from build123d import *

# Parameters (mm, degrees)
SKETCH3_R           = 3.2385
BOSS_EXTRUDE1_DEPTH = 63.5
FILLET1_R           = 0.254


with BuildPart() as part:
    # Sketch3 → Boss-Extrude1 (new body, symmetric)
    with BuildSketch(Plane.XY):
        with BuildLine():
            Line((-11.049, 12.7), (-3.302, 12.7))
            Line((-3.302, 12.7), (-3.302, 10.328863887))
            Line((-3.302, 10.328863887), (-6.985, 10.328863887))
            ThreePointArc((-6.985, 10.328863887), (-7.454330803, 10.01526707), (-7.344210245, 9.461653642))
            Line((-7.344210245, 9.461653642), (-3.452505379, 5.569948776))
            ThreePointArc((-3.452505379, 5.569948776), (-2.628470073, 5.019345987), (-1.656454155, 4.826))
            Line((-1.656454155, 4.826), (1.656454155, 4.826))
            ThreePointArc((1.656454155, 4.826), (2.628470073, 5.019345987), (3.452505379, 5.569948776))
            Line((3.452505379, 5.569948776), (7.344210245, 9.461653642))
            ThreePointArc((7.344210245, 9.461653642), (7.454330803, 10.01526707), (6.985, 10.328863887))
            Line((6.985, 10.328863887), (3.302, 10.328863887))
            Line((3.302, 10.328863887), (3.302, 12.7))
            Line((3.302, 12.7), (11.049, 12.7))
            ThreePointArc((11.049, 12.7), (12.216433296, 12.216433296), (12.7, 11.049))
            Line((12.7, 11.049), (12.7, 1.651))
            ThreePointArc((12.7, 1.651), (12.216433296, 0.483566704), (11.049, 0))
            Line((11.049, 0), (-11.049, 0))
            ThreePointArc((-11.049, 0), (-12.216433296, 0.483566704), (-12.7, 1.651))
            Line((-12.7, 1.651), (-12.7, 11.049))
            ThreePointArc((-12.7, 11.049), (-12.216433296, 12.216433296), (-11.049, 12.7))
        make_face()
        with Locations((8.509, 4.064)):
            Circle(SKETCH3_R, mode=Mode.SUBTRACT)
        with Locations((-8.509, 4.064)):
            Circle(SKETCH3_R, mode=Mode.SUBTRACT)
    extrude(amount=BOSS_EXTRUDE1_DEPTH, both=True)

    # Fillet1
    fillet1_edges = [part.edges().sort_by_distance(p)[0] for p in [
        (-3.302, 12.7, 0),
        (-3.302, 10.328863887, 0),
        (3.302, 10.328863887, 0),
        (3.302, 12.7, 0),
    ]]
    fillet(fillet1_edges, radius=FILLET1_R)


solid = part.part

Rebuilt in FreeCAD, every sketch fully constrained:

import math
import FreeCAD as App
import Part
import Sketcher
from FreeCAD import Vector
Q = App.Units.Quantity


def edges_at(feature, points):
    """Names of the edges that pass closest to the given points."""
    edges = feature.Shape.Edges
    near = lambda p: min(range(len(edges)), key=lambda i: edges[i].distToShape(Part.Vertex(*p))[0])
    return sorted({f"Edge{near(p) + 1}" for p in points})

doc = App.newDocument("Part")
body = doc.addObject("PartDesign::Body", "Body")

sketch1 = body.newObject("Sketcher::SketchObject", "Sketch")
sketch1.AttachmentSupport = (doc.getObject("XY_Plane"), [""])
sketch1.MapMode = "FlatFace"
sketch1.addGeometry([
    Part.LineSegment(Vector(-3.302, 12.7, 0), Vector(-11.049, 12.7, 0)),
    Part.ArcOfCircle(Part.Circle(Vector(-11.049, 11.049, 0), Vector(0, 0, 1), 1.651), math.radians(90), math.radians(180)),
    Part.LineSegment(Vector(-12.7, 11.049, 0), Vector(-12.7, 1.651, 0)),
    Part.ArcOfCircle(Part.Circle(Vector(-11.049, 1.651, 0), Vector(0, 0, 1), 1.651), math.radians(180), math.radians(270)),
    Part.LineSegment(Vector(-11.049, 0, 0), Vector(11.049, 0, 0)),
    Part.ArcOfCircle(Part.Circle(Vector(11.049, 1.651, 0), Vector(0, 0, 1), 1.651), math.radians(-90), math.radians(0)),
    Part.LineSegment(Vector(12.7, 1.651, 0), Vector(12.7, 11.049, 0)),
    Part.ArcOfCircle(Part.Circle(Vector(11.049, 11.049, 0), Vector(0, 0, 1), 1.651), math.radians(0), math.radians(90)),
    Part.LineSegment(Vector(11.049, 12.7, 0), Vector(3.302, 12.7, 0)),
    Part.LineSegment(Vector(3.302, 12.7, 0), Vector(3.302, 10.328864, 0)),
    Part.LineSegment(Vector(3.302, 10.328864, 0), Vector(6.985, 10.328864, 0)),
    Part.ArcOfCircle(Part.Circle(Vector(6.985, 9.820864, 0), Vector(0, 0, 1), 0.508), math.radians(-45), math.radians(90)),
    Part.LineSegment(Vector(7.34421, 9.461654, 0), Vector(3.452505, 5.569949, 0)),
    Part.ArcOfCircle(Part.Circle(Vector(1.656454, 7.366, 0), Vector(0, 0, 1), 2.54), math.radians(-90), math.radians(-45)),
    Part.LineSegment(Vector(1.656454, 4.826, 0), Vector(-1.656454, 4.826, 0)),
    Part.ArcOfCircle(Part.Circle(Vector(-1.656454, 7.366, 0), Vector(0, 0, 1), 2.54), math.radians(-135), math.radians(-90)),
    Part.LineSegment(Vector(-3.452505, 5.569949, 0), Vector(-7.34421, 9.461654, 0)),
    Part.ArcOfCircle(Part.Circle(Vector(-6.985, 9.820864, 0), Vector(0, 0, 1), 0.508), math.radians(90), math.radians(225)),
    Part.LineSegment(Vector(-6.985, 10.328864, 0), Vector(-3.302, 10.328864, 0)),
    Part.LineSegment(Vector(-3.302, 10.328864, 0), Vector(-3.302, 12.7, 0)),
    Part.Circle(Vector(8.509, 4.064, 0), Vector(0, 0, 1), 3.2385),
    Part.Circle(Vector(-8.509, 4.064, 0), Vector(0, 0, 1), 3.2385),
], False)
sketch1.addConstraint([
    Sketcher.Constraint("Tangent", 0, 2, 1, 1),
    Sketcher.Constraint("Tangent", 1, 2, 2, 1),
    Sketcher.Constraint("Tangent", 2, 2, 3, 1),
    Sketcher.Constraint("Tangent", 3, 2, 4, 1),
    Sketcher.Constraint("Tangent", 4, 2, 5, 1),
    Sketcher.Constraint("Tangent", 5, 2, 6, 1),
    Sketcher.Constraint("Tangent", 6, 2, 7, 1),
    Sketcher.Constraint("Tangent", 7, 2, 8, 1),
    Sketcher.Constraint("Coincident", 8, 2, 9, 1),
    Sketcher.Constraint("Coincident", 9, 2, 10, 1),
    Sketcher.Constraint("Tangent", 10, 2, 11, 2),
    Sketcher.Constraint("Tangent", 11, 1, 12, 1),
    Sketcher.Constraint("Tangent", 12, 2, 13, 2),
    Sketcher.Constraint("Tangent", 13, 1, 14, 1),
    Sketcher.Constraint("Tangent", 14, 2, 15, 2),
    Sketcher.Constraint("Tangent", 15, 1, 16, 1),
    Sketcher.Constraint("Tangent", 16, 2, 17, 2),
    Sketcher.Constraint("Tangent", 17, 1, 18, 1),
    Sketcher.Constraint("Coincident", 18, 2, 19, 1),
    Sketcher.Constraint("Coincident", 19, 2, 0, 1),
    Sketcher.Constraint("Horizontal", 0),
    Sketcher.Constraint("Vertical", 2),
    Sketcher.Constraint("Horizontal", 4),
    Sketcher.Constraint("Vertical", 6),
    Sketcher.Constraint("Horizontal", 8),
    Sketcher.Constraint("Vertical", 9),
    Sketcher.Constraint("Horizontal", 10),
    Sketcher.Constraint("Horizontal", 14),
    Sketcher.Constraint("Horizontal", 18),
    Sketcher.Constraint("Vertical", 19),
    Sketcher.Constraint("Equal", 1, 3),
    Sketcher.Constraint("Equal", 3, 5),
    Sketcher.Constraint("Equal", 5, 7),
    Sketcher.Constraint("Equal", 13, 15),
    Sketcher.Constraint("Equal", 11, 17),
    Sketcher.Constraint("Equal", 20, 21),
    Sketcher.Constraint("Symmetric", 3, 2, 4, 2, -1, 1),
    Sketcher.Constraint("Symmetric", 11, 3, 17, 3, -2),
    Sketcher.Constraint("Symmetric", 20, 3, 21, 3, -2),
    Sketcher.Constraint("Symmetric", 8, 2, 19, 2, -2),
    Sketcher.Constraint("Perpendicular", 12, 16),
    Sketcher.Constraint("Horizontal", 12, 2, 15, 1),
    Sketcher.Constraint("Radius", 13, Q("0.1 in")),
    Sketcher.Constraint("Radius", 11, Q("0.02 in")),
    Sketcher.Constraint("Diameter", 20, Q("0.255 in")),
    Sketcher.Constraint("Radius", 1, Q("0.065 in")),
    Sketcher.Constraint("DistanceX", 4, 1, 4, 2, Q("0.87 in")),
    Sketcher.Constraint("DistanceY", 2, 2, 2, 1, Q("0.37 in")),
    Sketcher.Constraint("DistanceX", 20, 3, 5, 3, Q("0.1 in")),
    Sketcher.Constraint("DistanceX", 0, 2, 0, 1, Q("0.305 in")),
    Sketcher.Constraint("DistanceX", 10, 1, 10, 2, Q("0.145 in")),
    Sketcher.Constraint("DistanceY", -1, 1, 13, 3, Q("0.29 in")),
    Sketcher.Constraint("DistanceY", -1, 1, 20, 3, Q("0.16 in")),
    Sketcher.Constraint("Distance", 12, Q("5.503702 mm")),
])
pad1 = body.newObject("PartDesign::Pad", "Pad")
pad1.Profile = sketch1
pad1.Length = Q("5 in")
pad1.Midplane = True
doc.recompute()

fillet = body.newObject("PartDesign::Fillet", "Fillet")
fillet.Base = (pad1, edges_at(pad1, [
    (-3.302, 12.7, 0),
    (-3.302, 10.329, 0),
    (3.302, 10.329, 0),
    (3.302, 12.7, 0),
]))
fillet.Radius = Q("0.01 in")

doc.recompute()
